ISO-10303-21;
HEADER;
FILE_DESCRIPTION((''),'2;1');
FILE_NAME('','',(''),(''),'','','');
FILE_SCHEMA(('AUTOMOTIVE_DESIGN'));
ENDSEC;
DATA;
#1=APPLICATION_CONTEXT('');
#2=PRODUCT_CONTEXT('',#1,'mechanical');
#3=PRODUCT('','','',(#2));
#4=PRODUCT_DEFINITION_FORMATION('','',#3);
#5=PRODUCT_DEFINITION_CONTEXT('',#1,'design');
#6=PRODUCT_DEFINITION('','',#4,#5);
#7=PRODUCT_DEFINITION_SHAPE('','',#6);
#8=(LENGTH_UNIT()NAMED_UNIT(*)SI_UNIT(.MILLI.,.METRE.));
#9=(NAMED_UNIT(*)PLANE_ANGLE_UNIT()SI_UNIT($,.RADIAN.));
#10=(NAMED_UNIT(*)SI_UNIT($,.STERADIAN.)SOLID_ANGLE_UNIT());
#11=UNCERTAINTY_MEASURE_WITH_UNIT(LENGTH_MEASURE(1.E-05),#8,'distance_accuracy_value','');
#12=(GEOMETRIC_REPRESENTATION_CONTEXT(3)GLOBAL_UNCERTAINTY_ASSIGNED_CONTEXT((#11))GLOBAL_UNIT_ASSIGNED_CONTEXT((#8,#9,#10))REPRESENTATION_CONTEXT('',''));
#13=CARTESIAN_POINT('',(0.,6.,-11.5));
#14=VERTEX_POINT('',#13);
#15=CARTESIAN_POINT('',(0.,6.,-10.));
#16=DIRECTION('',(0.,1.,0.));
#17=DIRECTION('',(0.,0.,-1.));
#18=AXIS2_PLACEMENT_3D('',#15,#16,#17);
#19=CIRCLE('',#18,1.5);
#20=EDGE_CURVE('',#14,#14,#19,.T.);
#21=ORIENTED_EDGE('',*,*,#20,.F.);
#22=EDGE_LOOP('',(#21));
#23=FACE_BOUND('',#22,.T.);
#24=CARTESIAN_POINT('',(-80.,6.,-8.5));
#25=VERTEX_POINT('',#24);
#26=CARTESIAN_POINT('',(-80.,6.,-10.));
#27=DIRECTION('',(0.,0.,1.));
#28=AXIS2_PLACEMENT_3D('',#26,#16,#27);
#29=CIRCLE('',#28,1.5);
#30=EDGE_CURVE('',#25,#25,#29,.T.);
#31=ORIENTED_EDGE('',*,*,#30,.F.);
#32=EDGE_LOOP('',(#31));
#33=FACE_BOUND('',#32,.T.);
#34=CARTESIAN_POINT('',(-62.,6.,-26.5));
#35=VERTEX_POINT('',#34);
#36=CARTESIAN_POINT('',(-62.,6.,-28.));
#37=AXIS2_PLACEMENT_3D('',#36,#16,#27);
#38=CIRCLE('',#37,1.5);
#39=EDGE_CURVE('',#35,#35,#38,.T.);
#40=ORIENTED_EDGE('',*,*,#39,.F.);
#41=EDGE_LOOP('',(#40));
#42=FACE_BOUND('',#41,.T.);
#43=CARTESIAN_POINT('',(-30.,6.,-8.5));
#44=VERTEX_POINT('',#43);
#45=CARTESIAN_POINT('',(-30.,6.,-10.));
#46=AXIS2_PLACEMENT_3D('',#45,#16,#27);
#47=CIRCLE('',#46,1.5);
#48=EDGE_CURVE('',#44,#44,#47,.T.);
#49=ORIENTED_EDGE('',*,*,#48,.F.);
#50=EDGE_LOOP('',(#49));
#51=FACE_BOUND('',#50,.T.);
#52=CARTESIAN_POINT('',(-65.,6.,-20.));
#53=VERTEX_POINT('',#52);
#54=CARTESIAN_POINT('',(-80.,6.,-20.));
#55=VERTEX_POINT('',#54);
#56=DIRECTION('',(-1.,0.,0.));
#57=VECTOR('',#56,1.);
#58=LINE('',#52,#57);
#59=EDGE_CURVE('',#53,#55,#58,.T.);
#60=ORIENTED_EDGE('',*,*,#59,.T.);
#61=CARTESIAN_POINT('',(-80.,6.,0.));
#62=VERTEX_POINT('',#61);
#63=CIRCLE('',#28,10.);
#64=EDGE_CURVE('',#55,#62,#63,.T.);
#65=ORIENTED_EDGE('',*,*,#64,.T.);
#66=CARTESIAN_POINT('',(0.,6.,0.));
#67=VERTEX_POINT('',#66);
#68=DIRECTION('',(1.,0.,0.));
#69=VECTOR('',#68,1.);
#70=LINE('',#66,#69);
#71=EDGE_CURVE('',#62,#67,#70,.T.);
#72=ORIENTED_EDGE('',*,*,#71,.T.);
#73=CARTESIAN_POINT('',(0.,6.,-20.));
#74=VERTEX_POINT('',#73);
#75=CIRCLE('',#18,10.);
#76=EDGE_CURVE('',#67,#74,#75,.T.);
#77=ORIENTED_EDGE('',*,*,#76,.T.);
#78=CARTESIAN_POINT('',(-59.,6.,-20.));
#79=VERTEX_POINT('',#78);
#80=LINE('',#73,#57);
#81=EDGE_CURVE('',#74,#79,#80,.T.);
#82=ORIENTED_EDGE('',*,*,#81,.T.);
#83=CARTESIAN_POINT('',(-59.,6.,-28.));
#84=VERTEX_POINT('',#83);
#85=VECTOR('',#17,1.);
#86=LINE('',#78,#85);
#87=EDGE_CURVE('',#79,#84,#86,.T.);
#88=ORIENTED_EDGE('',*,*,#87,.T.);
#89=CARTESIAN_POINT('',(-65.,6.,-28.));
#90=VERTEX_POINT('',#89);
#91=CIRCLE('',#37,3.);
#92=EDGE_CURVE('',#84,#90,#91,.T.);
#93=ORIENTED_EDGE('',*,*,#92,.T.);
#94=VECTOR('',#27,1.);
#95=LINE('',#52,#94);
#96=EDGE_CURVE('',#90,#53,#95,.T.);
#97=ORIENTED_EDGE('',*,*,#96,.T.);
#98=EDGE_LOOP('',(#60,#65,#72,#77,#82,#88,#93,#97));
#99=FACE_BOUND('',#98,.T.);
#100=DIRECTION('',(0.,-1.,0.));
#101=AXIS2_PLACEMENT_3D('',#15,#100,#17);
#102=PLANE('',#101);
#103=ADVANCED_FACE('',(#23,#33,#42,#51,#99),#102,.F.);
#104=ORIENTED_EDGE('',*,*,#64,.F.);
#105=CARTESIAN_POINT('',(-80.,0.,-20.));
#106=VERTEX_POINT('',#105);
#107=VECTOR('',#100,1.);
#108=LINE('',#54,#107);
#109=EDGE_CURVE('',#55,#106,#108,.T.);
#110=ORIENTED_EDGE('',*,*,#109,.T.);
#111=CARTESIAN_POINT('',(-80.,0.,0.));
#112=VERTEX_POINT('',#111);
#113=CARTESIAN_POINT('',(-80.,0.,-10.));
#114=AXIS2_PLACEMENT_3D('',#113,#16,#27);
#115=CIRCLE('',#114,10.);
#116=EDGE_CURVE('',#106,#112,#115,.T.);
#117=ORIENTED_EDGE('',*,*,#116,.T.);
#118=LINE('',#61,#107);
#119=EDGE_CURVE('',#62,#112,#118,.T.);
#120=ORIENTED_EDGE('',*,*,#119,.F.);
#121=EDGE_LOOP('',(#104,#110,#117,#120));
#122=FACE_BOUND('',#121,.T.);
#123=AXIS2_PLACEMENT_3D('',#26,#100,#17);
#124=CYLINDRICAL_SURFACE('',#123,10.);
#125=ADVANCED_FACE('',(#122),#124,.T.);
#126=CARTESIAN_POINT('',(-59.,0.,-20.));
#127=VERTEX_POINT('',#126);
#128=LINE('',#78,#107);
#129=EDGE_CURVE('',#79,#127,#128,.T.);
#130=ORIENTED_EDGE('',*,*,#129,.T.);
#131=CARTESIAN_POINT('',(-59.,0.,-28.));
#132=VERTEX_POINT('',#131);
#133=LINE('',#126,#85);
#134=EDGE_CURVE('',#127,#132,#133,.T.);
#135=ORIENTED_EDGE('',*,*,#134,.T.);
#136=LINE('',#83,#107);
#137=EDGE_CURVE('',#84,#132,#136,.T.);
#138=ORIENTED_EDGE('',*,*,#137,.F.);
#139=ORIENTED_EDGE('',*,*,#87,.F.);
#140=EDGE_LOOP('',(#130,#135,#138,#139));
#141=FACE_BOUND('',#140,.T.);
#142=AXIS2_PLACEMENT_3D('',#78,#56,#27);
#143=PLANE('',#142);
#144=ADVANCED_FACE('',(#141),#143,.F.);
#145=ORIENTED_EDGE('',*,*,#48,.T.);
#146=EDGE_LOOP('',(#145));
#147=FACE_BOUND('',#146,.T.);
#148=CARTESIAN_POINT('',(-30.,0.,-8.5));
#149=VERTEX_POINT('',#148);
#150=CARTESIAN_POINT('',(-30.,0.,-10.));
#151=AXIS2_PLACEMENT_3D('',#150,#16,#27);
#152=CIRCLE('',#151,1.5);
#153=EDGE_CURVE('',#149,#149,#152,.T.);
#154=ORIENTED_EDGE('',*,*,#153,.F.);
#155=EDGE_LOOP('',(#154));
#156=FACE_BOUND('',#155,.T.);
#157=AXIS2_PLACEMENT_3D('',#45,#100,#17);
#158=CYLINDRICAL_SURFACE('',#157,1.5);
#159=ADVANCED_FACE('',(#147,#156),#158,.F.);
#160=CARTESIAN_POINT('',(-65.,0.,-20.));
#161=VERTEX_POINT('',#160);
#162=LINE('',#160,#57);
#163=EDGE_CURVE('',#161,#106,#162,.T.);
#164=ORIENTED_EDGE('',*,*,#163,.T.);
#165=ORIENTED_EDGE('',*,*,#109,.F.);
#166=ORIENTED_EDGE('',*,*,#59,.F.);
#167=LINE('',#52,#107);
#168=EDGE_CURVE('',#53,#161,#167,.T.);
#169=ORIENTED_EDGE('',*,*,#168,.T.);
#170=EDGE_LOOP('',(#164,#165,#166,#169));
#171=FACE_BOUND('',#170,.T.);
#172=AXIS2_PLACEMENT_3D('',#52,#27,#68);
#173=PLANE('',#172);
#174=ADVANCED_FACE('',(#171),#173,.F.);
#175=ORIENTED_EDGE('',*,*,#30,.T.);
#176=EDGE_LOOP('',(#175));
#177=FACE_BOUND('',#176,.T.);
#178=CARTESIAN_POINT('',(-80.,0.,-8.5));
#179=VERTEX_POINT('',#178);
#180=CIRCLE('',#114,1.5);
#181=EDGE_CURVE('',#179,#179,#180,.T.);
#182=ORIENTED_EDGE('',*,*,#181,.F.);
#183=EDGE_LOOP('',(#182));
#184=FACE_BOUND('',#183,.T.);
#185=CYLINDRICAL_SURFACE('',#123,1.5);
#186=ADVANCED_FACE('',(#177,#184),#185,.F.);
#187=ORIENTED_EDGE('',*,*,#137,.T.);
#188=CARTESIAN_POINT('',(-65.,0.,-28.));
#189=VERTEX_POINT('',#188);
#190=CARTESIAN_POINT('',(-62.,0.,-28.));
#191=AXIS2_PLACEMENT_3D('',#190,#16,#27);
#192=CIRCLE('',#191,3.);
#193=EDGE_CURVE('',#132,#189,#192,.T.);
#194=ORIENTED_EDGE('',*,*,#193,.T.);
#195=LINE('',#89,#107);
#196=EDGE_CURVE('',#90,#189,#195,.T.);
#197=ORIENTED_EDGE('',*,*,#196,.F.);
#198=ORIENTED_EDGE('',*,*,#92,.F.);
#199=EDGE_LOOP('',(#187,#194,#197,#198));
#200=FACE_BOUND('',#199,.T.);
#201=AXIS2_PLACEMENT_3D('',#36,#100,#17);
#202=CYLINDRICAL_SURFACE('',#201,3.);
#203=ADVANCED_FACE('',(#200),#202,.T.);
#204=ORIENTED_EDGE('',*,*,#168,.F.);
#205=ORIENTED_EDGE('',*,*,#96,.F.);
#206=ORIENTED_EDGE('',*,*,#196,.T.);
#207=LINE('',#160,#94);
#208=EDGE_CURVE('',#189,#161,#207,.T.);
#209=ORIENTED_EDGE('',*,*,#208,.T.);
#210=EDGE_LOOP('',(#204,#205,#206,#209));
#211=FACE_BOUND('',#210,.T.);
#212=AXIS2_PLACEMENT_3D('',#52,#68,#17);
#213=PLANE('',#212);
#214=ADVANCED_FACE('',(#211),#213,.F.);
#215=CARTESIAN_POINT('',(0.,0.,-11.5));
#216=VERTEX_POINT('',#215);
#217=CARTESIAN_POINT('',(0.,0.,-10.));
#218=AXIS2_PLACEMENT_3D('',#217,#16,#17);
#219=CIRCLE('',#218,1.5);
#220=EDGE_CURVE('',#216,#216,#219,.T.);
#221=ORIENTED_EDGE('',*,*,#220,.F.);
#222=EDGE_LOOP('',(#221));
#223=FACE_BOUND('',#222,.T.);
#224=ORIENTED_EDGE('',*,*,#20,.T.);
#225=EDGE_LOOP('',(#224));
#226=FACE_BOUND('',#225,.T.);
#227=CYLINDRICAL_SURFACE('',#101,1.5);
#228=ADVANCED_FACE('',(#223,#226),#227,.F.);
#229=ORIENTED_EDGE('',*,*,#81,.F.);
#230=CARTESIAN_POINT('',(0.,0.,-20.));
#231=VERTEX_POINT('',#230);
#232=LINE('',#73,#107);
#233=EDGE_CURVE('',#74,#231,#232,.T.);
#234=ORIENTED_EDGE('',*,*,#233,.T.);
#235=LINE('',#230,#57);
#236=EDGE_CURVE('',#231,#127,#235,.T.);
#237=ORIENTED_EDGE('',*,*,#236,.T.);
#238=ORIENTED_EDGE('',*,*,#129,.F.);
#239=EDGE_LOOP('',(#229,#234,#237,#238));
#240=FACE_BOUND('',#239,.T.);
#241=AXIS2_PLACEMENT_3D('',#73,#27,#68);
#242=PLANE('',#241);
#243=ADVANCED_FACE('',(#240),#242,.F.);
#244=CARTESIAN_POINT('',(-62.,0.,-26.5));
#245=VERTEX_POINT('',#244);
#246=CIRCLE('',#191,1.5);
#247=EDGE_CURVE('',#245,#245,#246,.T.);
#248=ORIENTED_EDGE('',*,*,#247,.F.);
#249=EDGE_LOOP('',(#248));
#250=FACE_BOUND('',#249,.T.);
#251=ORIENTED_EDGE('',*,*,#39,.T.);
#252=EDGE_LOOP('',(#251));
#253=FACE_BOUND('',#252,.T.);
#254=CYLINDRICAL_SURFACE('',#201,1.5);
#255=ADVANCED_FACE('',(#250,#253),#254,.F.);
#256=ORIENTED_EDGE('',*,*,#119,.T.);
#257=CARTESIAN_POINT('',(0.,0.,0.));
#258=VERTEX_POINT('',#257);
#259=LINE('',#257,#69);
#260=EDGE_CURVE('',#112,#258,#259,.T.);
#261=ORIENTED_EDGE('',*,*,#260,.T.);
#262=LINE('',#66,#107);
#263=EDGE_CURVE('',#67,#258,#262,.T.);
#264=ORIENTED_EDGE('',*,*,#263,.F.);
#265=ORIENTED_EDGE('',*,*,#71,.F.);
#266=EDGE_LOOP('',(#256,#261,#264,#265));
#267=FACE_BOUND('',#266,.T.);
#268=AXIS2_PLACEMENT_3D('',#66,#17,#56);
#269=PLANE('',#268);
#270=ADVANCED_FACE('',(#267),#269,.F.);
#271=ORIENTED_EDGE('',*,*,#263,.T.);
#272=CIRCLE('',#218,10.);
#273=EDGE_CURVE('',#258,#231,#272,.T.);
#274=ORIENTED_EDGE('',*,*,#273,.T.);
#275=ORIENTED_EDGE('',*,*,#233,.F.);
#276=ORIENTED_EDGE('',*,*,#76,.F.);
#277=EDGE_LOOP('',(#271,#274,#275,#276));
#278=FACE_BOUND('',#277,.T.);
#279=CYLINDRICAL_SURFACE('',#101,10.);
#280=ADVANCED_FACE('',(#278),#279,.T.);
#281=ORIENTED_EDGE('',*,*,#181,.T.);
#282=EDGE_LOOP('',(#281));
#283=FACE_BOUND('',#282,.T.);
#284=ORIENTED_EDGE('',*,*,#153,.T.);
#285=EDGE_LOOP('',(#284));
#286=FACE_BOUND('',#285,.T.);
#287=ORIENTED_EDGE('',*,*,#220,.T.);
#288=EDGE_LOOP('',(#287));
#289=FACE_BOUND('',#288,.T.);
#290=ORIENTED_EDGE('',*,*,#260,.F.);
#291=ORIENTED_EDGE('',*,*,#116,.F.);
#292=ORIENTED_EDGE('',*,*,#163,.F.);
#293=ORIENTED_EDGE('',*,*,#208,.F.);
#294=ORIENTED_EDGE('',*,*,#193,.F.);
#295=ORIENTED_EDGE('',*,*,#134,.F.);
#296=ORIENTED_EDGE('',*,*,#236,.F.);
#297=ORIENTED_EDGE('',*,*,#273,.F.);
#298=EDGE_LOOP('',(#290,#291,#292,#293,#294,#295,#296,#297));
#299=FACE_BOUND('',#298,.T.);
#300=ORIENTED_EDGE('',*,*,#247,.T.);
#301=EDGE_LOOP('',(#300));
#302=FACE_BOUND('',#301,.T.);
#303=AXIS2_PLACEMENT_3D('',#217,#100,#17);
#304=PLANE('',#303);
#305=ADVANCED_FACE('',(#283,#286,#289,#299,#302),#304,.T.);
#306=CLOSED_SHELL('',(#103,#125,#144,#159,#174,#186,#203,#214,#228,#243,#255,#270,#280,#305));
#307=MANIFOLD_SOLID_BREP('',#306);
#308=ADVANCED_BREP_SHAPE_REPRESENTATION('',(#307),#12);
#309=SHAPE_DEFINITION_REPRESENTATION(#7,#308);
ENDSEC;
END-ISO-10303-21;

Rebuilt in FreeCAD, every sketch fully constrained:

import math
import FreeCAD as App
import Part
import Sketcher
from FreeCAD import Vector

doc = App.newDocument("Part")
body = doc.addObject("PartDesign::Body", "Body")

sketch1 = doc.addObject("Sketcher::SketchObject", "Sketch")
body.addObject(sketch1)
sketch1.AttachmentSupport = (doc.XZ_Plane, [""])
sketch1.MapMode = "FlatFace"
sketch1.addGeometry([
    Part.LineSegment(Vector(-80, 0, 0), Vector(0, 0, 0)),
    Part.ArcOfCircle(Part.Circle(Vector(0, -10, 0), Vector(0, 0, 1), 10), math.radians(-90), math.radians(90)),
    Part.LineSegment(Vector(0, -20, 0), Vector(-59, -20, 0)),
    Part.LineSegment(Vector(-59, -20, 0), Vector(-59, -28, 0)),
    Part.ArcOfCircle(Part.Circle(Vector(-62, -28, 0), Vector(0, 0, 1), 3), math.radians(180), math.radians(360)),
    Part.LineSegment(Vector(-65, -28, 0), Vector(-65, -20, 0)),
    Part.LineSegment(Vector(-65, -20, 0), Vector(-80, -20, 0)),
    Part.ArcOfCircle(Part.Circle(Vector(-80, -10, 0), Vector(0, 0, 1), 10), math.radians(90), math.radians(270)),
    Part.Circle(Vector(0, -10, 0), Vector(0, 0, 1), 1.5),
    Part.Circle(Vector(-30, -10, 0), Vector(0, 0, 1), 1.5),
    Part.Circle(Vector(-80, -10, 0), Vector(0, 0, 1), 1.5),
    Part.Circle(Vector(-62, -28, 0), Vector(0, 0, 1), 1.5),
], False)
sketch1.addConstraint([
    Sketcher.Constraint("Tangent", 0, 2, 1, 2),
    Sketcher.Constraint("Tangent", 1, 1, 2, 1),
    Sketcher.Constraint("Coincident", 2, 2, 3, 1),
    Sketcher.Constraint("Tangent", 3, 2, 4, 2),
    Sketcher.Constraint("Tangent", 4, 1, 5, 1),
    Sketcher.Constraint("Coincident", 5, 2, 6, 1),
    Sketcher.Constraint("Tangent", 6, 2, 7, 2),
    Sketcher.Constraint("Tangent", 7, 1, 0, 1),
    Sketcher.Constraint("Horizontal", 0),
    Sketcher.Constraint("Horizontal", 2),
    Sketcher.Constraint("Vertical", 3),
    Sketcher.Constraint("Vertical", 5),
    Sketcher.Constraint("Horizontal", 6),
    Sketcher.Constraint("Coincident", 0, 2, -1, 1),
    Sketcher.Constraint("Coincident", 8, 3, 1, 3),
    Sketcher.Constraint("Coincident", 10, 3, 7, 3),
    Sketcher.Constraint("Coincident", 11, 3, 4, 3),
    Sketcher.Constraint("Equal", 1, 7),
    Sketcher.Constraint("Equal", 8, 9),
    Sketcher.Constraint("Equal", 9, 10),
    Sketcher.Constraint("Equal", 10, 11),
    Sketcher.Constraint("Horizontal", 8, 3, 9, 3),
    Sketcher.Constraint("Diameter", 8, 3.0),
    Sketcher.Constraint("Radius", 1, 10.0),
    Sketcher.Constraint("Radius", 4, 3.0),
    Sketcher.Constraint("DistanceX", 0, 1, 0, 2, 80.0),
    Sketcher.Constraint("DistanceX", 2, 2, 2, 1, 59.0),
    Sketcher.Constraint("DistanceY", 3, 2, 3, 1, 8.0),
    Sketcher.Constraint("DistanceX", 9, 3, -1, 1, 30.0),
])
pad1 = doc.addObject("PartDesign::Pad", "Pad")
body.addObject(pad1)
pad1.Profile = sketch1
pad1.Length = 6
pad1.Reversed = True

doc.recompute()
